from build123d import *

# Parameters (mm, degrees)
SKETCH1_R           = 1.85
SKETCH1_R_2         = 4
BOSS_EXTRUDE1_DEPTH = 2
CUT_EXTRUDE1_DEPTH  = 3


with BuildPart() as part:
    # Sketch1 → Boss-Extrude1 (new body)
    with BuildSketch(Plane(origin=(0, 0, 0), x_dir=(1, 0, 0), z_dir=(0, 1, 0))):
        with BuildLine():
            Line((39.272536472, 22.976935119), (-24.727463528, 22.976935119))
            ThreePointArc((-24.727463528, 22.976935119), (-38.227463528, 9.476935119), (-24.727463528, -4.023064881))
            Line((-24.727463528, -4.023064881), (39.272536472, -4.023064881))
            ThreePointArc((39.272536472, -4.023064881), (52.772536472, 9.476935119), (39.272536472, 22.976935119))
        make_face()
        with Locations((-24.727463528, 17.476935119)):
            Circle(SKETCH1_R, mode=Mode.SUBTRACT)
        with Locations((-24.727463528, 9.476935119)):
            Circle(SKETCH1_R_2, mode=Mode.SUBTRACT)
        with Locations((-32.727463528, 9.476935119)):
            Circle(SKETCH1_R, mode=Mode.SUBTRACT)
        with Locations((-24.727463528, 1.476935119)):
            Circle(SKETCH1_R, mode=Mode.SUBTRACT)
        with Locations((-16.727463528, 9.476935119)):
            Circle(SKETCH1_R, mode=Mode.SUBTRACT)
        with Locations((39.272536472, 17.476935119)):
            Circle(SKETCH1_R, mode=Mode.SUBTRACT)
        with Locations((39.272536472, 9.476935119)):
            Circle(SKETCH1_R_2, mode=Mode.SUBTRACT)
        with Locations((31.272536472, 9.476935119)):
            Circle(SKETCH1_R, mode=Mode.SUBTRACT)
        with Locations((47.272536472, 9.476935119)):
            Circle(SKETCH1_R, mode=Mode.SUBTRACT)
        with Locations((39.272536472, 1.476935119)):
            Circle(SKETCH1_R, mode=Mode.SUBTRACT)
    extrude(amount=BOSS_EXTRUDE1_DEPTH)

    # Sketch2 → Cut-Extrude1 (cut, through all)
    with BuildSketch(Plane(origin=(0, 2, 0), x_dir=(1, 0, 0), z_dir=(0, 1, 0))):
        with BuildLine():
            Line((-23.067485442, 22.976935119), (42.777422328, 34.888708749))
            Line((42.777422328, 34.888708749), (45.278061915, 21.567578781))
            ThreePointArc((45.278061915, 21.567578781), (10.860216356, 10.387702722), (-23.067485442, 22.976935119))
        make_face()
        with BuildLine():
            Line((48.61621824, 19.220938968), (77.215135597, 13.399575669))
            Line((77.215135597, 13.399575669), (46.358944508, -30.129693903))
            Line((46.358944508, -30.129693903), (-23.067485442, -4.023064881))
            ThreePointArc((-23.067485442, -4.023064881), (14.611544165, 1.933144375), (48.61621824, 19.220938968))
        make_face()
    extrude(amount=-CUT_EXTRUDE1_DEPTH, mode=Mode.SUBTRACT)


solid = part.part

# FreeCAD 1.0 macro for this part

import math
import FreeCAD as App
import Part
import Sketcher
from FreeCAD import Vector

doc = App.newDocument("Part")
params = doc.addObject("Spreadsheet::Sheet", "Params")
for row, (alias, value) in enumerate([
    ("sketch1_diameter", "8 mm"),
    ("sketch1_diameter2", "3.7 mm"),
    ("sketch1_radius", "13.5 mm"),
    ("sketch1_width", "64 mm"),
    ("pad1_length", "2 mm"),
], start=1):
    params.set(f"A{row}", alias)
    params.set(f"B{row}", "=" + value)
    params.setAlias(f"B{row}", alias)

body = doc.addObject("PartDesign::Body", "Body")

# Sketch on XZ plane
sketch1 = body.newObject("Sketcher::SketchObject", "Sketch")
sketch1.AttachmentSupport = (doc.getObject("XZ_Plane"), [""])
sketch1.MapMode = "FlatFace"
sketch1.addGeometry(Part.LineSegment(Vector(39.3, -23, 0), Vector(-24.7, -23, 0)), False)
sketch1.addGeometry(Part.ArcOfCircle(Part.Circle(Vector(-24.7, -9.5, 0), Vector(0, 0, 1), 13.5), math.radians(90), math.radians(270)), False)
sketch1.addGeometry(Part.LineSegment(Vector(-24.7, 4, 0), Vector(39.3, 4, 0)), False)
sketch1.addGeometry(Part.ArcOfCircle(Part.Circle(Vector(39.3, -9.5, 0), Vector(0, 0, 1), 13.5), math.radians(-90), math.radians(90)), False)
sketch1.addGeometry(Part.Circle(Vector(-24.7, -1.5, 0), Vector(0, 0, 1), 1.9), False)
sketch1.addGeometry(Part.Circle(Vector(39.3, -1.5, 0), Vector(0, 0, 1), 1.9), False)
sketch1.addGeometry(Part.Circle(Vector(-32.7, -9.5, 0), Vector(0, 0, 1), 1.9), False)
sketch1.addGeometry(Part.Circle(Vector(-24.7, -9.5, 0), Vector(0, 0, 1), 4), False)
sketch1.addGeometry(Part.Circle(Vector(-16.7, -9.5, 0), Vector(0, 0, 1), 1.9), False)
sketch1.addGeometry(Part.Circle(Vector(-24.7, -17.5, 0), Vector(0, 0, 1), 1.9), False)
sketch1.addGeometry(Part.Circle(Vector(31.3, -9.5, 0), Vector(0, 0, 1), 1.9), False)
sketch1.addGeometry(Part.Circle(Vector(39.3, -9.5, 0), Vector(0, 0, 1), 4), False)
sketch1.addGeometry(Part.Circle(Vector(47.3, -9.5, 0), Vector(0, 0, 1), 1.9), False)
sketch1.addGeometry(Part.Circle(Vector(39.3, -17.5, 0), Vector(0, 0, 1), 1.9), False)
sketch1.addConstraint(Sketcher.Constraint("Tangent", 0, 2, 1, 2))
sketch1.addConstraint(Sketcher.Constraint("Tangent", 1, 1, 2, 1))
sketch1.addConstraint(Sketcher.Constraint("Tangent", 2, 2, 3, 2))
sketch1.addConstraint(Sketcher.Constraint("Tangent", 3, 1, 0, 1))
sketch1.addConstraint(Sketcher.Constraint("Horizontal", 0))
sketch1.addConstraint(Sketcher.Constraint("Horizontal", 2))
sketch1.addConstraint(Sketcher.Constraint("Coincident", 7, 3, 1, 3))
sketch1.addConstraint(Sketcher.Constraint("Coincident", 11, 3, 3, 3))
sketch1.addConstraint(Sketcher.Constraint("Equal", 4, 5))
sketch1.addConstraint(Sketcher.Constraint("Equal", 5, 6))
sketch1.addConstraint(Sketcher.Constraint("Equal", 6, 8))
sketch1.addConstraint(Sketcher.Constraint("Equal", 8, 9))
sketch1.addConstraint(Sketcher.Constraint("Equal", 9, 10))
sketch1.addConstraint(Sketcher.Constraint("Equal", 7, 11))
sketch1.addConstraint(Sketcher.Constraint("Equal", 10, 12))
sketch1.addConstraint(Sketcher.Constraint("Equal", 12, 13))
sketch1.addConstraint(Sketcher.Constraint("Horizontal", 4, 3, 5, 3))
sketch1.addConstraint(Sketcher.Constraint("Horizontal", 3, 3, 6, 3))
sketch1.addConstraint(Sketcher.Constraint("Horizontal", 7, 3, 8, 3))
sketch1.addConstraint(Sketcher.Constraint("Horizontal", 8, 3, 10, 3))
sketch1.addConstraint(Sketcher.Constraint("Horizontal", 11, 3, 12, 3))
sketch1.addConstraint(Sketcher.Constraint("Horizontal", 9, 3, 13, 3))
sketch1.addConstraint(Sketcher.Constraint("Vertical", 1, 3, 4, 3))
sketch1.addConstraint(Sketcher.Constraint("Vertical", 3, 3, 5, 3))
sketch1.addConstraint(Sketcher.Constraint("Vertical", 7, 3, 9, 3))
sketch1.addConstraint(Sketcher.Constraint("Vertical", 11, 3, 13, 3))
sketch1.addConstraint(Sketcher.Constraint("Diameter", 7, 8.0))
sketch1.addConstraint(Sketcher.Constraint("Diameter", 4, 3.7))
sketch1.addConstraint(Sketcher.Constraint("Radius", 1, 13.5))
sketch1.addConstraint(Sketcher.Constraint("DistanceX", 0, 2, 0, 1, 64.0))
sketch1.addConstraint(Sketcher.Constraint("DistanceY", 1, 3, 4, 3, 8.0))
sketch1.addConstraint(Sketcher.Constraint("DistanceX", 6, 3, 1, 3, 8.0))
sketch1.addConstraint(Sketcher.Constraint("DistanceX", 1, 3, 8, 3, 8.0))
sketch1.addConstraint(Sketcher.Constraint("DistanceY", 9, 3, 1, 3, 8.0))
sketch1.addConstraint(Sketcher.Constraint("DistanceX", 10, 3, 3, 3, 8.0))
sketch1.addConstraint(Sketcher.Constraint("DistanceX", 3, 3, 12, 3, 8.0))
sketch1.addConstraint(Sketcher.Constraint("DistanceX", 1, 3, -1, 1, 24.727464))
sketch1.addConstraint(Sketcher.Constraint("DistanceY", 1, 3, -1, 1, 9.476935))
sketch1.setExpression("Constraints[26]", "Params.sketch1_diameter")
sketch1.setExpression("Constraints[27]", "Params.sketch1_diameter2")
sketch1.setExpression("Constraints[28]", "Params.sketch1_radius")
sketch1.setExpression("Constraints[29]", "Params.sketch1_width")
pad1 = body.newObject("PartDesign::Pad", "Pad")
pad1.Profile = sketch1
pad1.setExpression("Length", "Params.pad1_length")
pad1.Reversed = True

# Sketch on XZ plane
sketch2 = body.newObject("Sketcher::SketchObject", "Sketch001")
sketch2.AttachmentSupport = (doc.getObject("XZ_Plane"), [""])
sketch2.MapMode = "FlatFace"
sketch2.AttachmentOffset = App.Placement(Vector(0, 0, -2), App.Rotation())
sketch2.addGeometry(Part.LineSegment(Vector(43, -35, 0), Vector(-23, -23, 0)), False)
sketch2.addGeometry(Part.ArcOfCircle(Part.Circle(Vector(12, -65, 0), Vector(0, 0, 1), 55), math.radians(53), math.radians(130)), False)
sketch2.addGeometry(Part.LineSegment(Vector(45, -22, 0), Vector(43, -35, 0)), False)
sketch2.addGeometry(Part.LineSegment(Vector(77, -13, 0), Vector(49, -19, 0)), False)
sketch2.addGeometry(Part.ArcOfCircle(Part.Circle(Vector(-23, -118, 0), Vector(0, 0, 1), 122), math.radians(54), math.radians(90)), False)
sketch2.addGeometry(Part.LineSegment(Vector(-23, 4, 0), Vector(46, 30, 0)), False)
sketch2.addGeometry(Part.LineSegment(Vector(46, 30, 0), Vector(77, -13, 0)), False)
sketch2.addConstraint(Sketcher.Constraint("Coincident", 0, 2, 1, 2))
sketch2.addConstraint(Sketcher.Constraint("Coincident", 1, 1, 2, 1))
sketch2.addConstraint(Sketcher.Constraint("Coincident", 2, 2, 0, 1))
sketch2.addConstraint(Sketcher.Constraint("Coincident", 3, 2, 4, 1))
sketch2.addConstraint(Sketcher.Constraint("Coincident", 4, 2, 5, 1))
sketch2.addConstraint(Sketcher.Constraint("Coincident", 5, 2, 6, 1))
sketch2.addConstraint(Sketcher.Constraint("Coincident", 6, 2, 3, 1))
sketch2.addConstraint(Sketcher.Constraint("Vertical", 4, 3, 0, 2))
sketch2.addConstraint(Sketcher.Constraint("Vertical", 0, 2, 4, 2))
sketch2.addConstraint(Sketcher.Constraint("DistanceY", 0, 2, 4, 2, 27.0))
sketch2.addConstraint(Sketcher.Constraint("Radius", 1, 55.084076))
sketch2.addConstraint(Sketcher.Constraint("Radius", 4, 122.157033))
sketch2.addConstraint(Sketcher.Constraint("Distance", 3, 29.185379))
sketch2.addConstraint(Sketcher.Constraint("Distance", 5, 74.172672))
sketch2.addConstraint(Sketcher.Constraint("DistanceY", 1, 3, -1, 1, 65.460071))
sketch2.addConstraint(Sketcher.Constraint("DistanceY", 4, 3, -1, 1, 118.133968))
sketch2.addConstraint(Sketcher.Constraint("DistanceX", -1, 1, 1, 1, 45.278062))
sketch2.addConstraint(Sketcher.Constraint("DistanceY", 1, 1, -1, 1, 21.567579))
sketch2.addConstraint(Sketcher.Constraint("DistanceY", 2, 2, -1, 1, 34.888709))
sketch2.addConstraint(Sketcher.Constraint("DistanceX", -1, 1, 3, 2, 48.616218))
sketch2.addConstraint(Sketcher.Constraint("DistanceX", 2, 2, 1, 1, 2.50064))
sketch2.addConstraint(Sketcher.Constraint("DistanceX", 4, 2, 5, 2, 69.42643))
sketch2.addConstraint(Sketcher.Constraint("DistanceX", 5, 2, 6, 2, 30.856191))
pocket1 = body.newObject("PartDesign::Pocket", "Pocket")
pocket1.Profile = sketch2
pocket1.Type = "ThroughAll"
pocket1.Reversed = True

doc.recompute()
